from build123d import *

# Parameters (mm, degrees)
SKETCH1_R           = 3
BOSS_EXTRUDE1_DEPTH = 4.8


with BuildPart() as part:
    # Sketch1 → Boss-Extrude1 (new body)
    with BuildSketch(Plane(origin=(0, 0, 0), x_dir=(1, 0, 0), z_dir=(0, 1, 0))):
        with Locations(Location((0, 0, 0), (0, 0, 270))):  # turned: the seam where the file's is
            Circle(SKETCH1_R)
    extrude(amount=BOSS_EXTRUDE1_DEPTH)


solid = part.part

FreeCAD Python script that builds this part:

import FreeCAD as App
import Part
import Sketcher

V = App.Vector
Q = App.Units.Quantity

doc = App.newDocument("Part")
params = doc.addObject("Spreadsheet::Sheet", "Params")
for row, (alias, value) in enumerate([
    ("sketch1_diameter", "6 mm"),
    ("pad1_length", "4.8 mm"),
], start=1):
    params.set(f"A{row}", alias)
    params.set(f"B{row}", "=" + value)
    params.setAlias(f"B{row}", alias)

body = doc.addObject("PartDesign::Body", "Body")

sketch1 = body.newObject("Sketcher::SketchObject", "Sketch")
sketch1.AttachmentSupport = (doc.getObject("XZ_Plane"), [""])
sketch1.MapMode = "FlatFace"
sketch1.addGeometry(Part.Circle(V(0, 0, 0), V(0, 0, 1), 3), False)
sketch1.addConstraint(Sketcher.Constraint("Coincident", 0, 3, -1, 1))
sketch1.addConstraint(Sketcher.Constraint("Diameter", 0, Q("6 mm")))
sketch1.setExpression("Constraints[1]", "Params.sketch1_diameter")
pad1 = body.newObject("PartDesign::Pad", "Pad")
pad1.Profile = sketch1
pad1.setExpression("Length", "Params.pad1_length")
pad1.Reversed = True

doc.recompute()
